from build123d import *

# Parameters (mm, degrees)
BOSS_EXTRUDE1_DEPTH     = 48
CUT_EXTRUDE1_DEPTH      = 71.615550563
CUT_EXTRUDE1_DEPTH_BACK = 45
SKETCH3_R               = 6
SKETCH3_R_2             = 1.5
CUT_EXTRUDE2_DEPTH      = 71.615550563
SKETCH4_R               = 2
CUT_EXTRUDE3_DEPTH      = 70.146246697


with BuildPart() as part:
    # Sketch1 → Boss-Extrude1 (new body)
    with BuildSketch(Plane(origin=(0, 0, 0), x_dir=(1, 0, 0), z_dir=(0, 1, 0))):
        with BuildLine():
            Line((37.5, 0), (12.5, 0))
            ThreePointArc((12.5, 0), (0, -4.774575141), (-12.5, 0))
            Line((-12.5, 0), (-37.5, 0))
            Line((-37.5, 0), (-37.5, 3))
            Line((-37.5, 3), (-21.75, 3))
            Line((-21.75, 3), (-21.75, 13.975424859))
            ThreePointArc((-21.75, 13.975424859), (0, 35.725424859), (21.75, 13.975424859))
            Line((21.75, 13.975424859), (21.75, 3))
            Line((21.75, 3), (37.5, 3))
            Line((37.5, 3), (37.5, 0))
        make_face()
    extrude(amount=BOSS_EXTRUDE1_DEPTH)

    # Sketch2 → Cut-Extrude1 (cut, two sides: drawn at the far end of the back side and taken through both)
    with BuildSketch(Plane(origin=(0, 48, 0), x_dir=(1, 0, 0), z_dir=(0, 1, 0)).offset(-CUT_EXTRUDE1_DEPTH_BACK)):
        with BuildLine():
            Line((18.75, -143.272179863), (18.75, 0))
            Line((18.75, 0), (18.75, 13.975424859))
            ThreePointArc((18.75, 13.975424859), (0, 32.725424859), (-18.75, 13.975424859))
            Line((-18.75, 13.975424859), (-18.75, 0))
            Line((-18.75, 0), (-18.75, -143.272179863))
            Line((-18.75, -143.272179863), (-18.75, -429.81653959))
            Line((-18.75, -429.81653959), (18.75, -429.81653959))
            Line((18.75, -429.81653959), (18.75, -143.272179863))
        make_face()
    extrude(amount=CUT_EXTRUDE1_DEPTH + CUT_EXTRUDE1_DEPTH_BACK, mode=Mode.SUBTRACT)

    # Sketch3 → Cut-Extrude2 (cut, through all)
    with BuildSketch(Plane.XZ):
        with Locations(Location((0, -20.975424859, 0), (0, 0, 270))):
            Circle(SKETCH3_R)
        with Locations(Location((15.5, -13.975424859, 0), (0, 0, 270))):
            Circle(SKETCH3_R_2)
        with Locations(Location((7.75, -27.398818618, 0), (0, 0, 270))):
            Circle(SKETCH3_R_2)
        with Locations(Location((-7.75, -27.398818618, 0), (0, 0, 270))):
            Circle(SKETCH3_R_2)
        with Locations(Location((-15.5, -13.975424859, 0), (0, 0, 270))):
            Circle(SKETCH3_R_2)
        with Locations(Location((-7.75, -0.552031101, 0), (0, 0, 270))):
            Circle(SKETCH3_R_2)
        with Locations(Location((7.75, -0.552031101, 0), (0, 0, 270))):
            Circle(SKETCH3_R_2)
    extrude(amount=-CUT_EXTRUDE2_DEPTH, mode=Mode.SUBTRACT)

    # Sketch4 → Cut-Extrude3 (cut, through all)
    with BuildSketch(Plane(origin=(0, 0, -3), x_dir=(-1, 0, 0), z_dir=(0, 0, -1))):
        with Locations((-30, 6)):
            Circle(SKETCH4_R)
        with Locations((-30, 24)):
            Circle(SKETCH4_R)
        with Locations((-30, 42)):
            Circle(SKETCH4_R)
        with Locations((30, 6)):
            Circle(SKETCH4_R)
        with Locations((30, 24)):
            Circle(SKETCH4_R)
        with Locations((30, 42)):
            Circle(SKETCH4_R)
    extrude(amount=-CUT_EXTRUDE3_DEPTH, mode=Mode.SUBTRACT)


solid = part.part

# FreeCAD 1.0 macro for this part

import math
import FreeCAD as App
import Part
import Sketcher
from FreeCAD import Vector

doc = App.newDocument("Part")
body = doc.addObject("PartDesign::Body", "Body")

# Sketch on XZ plane
sketch1 = body.newObject("Sketcher::SketchObject", "Sketch")
sketch1.AttachmentSupport = (doc.getObject("XZ_Plane"), [""])
sketch1.MapMode = "FlatFace"
sketch1.addGeometry([
    Part.LineSegment(Vector(12.5, 0, 0), Vector(37.5, 0, 0)),  # 0
    Part.LineSegment(Vector(37.5, 0, 0), Vector(37.5, -3, 0)),  # 1
    Part.LineSegment(Vector(37.5, -3, 0), Vector(21.75, -3, 0)),  # 2
    Part.LineSegment(Vector(21.75, -3, 0), Vector(21.75, -13.975425, 0)),  # 3
    Part.ArcOfCircle(Part.Circle(Vector(0, -13.975425, 0), Vector(0, 0, 1), 21.75), math.radians(180), math.radians(360)),  # 4
    Part.LineSegment(Vector(-21.75, -13.975425, 0), Vector(-21.75, -3, 0)),  # 5
    Part.LineSegment(Vector(-21.75, -3, 0), Vector(-37.5, -3, 0)),  # 6
    Part.LineSegment(Vector(-37.5, -3, 0), Vector(-37.5, 0, 0)),  # 7
    Part.LineSegment(Vector(-37.5, 0, 0), Vector(-12.5, 0, 0)),  # 8
    Part.ArcOfCircle(Part.Circle(Vector(0, -13.975425, 0), Vector(0, 0, 1), 18.75), math.radians(48.189685), math.radians(131.810315)),  # 9
], False)
sketch1.addConstraint([
    Sketcher.Constraint("Coincident", 0, 2, 1, 1),
    Sketcher.Constraint("Coincident", 1, 2, 2, 1),
    Sketcher.Constraint("Coincident", 2, 2, 3, 1),
    Sketcher.Constraint("Tangent", 3, 2, 4, 2),
    Sketcher.Constraint("Tangent", 4, 1, 5, 1),
    Sketcher.Constraint("Coincident", 5, 2, 6, 1),
    Sketcher.Constraint("Coincident", 6, 2, 7, 1),
    Sketcher.Constraint("Coincident", 7, 2, 8, 1),
    Sketcher.Constraint("Coincident", 8, 2, 9, 2),
    Sketcher.Constraint("Coincident", 9, 1, 0, 1),
    Sketcher.Constraint("Horizontal", 0),
    Sketcher.Constraint("Vertical", 1),
    Sketcher.Constraint("Horizontal", 2),
    Sketcher.Constraint("Vertical", 3),
    Sketcher.Constraint("Vertical", 5),
    Sketcher.Constraint("Horizontal", 6),
    Sketcher.Constraint("Vertical", 7),
    Sketcher.Constraint("Horizontal", 8),
    Sketcher.Constraint("Coincident", 9, 3, 4, 3),
    Sketcher.Constraint("Symmetric", 0, 2, 7, 2, -1, 1),
    Sketcher.Constraint("Symmetric", 2, 2, 5, 2, -2),
    Sketcher.Constraint("PointOnObject", 0, 2, -1),
    Sketcher.Constraint("DistanceX", 0, 1, 0, 2, 25.0),
    Sketcher.Constraint("DistanceY", 1, 2, 1, 1, 3.0),
    Sketcher.Constraint("Radius", 4, 21.75),
    Sketcher.Constraint("Radius", 9, 18.75),
    Sketcher.Constraint("DistanceX", 2, 2, 2, 1, 15.75),
])
pad1 = body.newObject("PartDesign::Pad", "Pad")
pad1.Profile = sketch1
pad1.Length = 48
pad1.Reversed = True

# Sketch on XZ plane
sketch2 = body.newObject("Sketcher::SketchObject", "Sketch001")
sketch2.AttachmentSupport = (doc.getObject("XZ_Plane"), [""])
sketch2.MapMode = "FlatFace"
sketch2.AttachmentOffset = App.Placement(Vector(0, 0, -48), App.Rotation())
sketch2.addGeometry([
    Part.ArcOfCircle(Part.Circle(Vector(0, -13.975425, 0), Vector(0, 0, 1), 18.75), math.radians(180), math.radians(360)),
    Part.LineSegment(Vector(-18.75, -13.975425, 0), Vector(-18.75, 429.81654, 0)),
    Part.LineSegment(Vector(-18.75, 429.81654, 0), Vector(18.75, 429.81654, 0)),
    Part.LineSegment(Vector(18.75, 429.81654, 0), Vector(18.75, -13.975425, 0)),
], False)
sketch2.addConstraint([
    Sketcher.Constraint("Tangent", 0, 1, 1, 1),
    Sketcher.Constraint("Coincident", 1, 2, 2, 1),
    Sketcher.Constraint("Coincident", 2, 2, 3, 1),
    Sketcher.Constraint("Tangent", 3, 2, 0, 2),
    Sketcher.Constraint("Vertical", 1),
    Sketcher.Constraint("Horizontal", 2),
    Sketcher.Constraint("Vertical", 3),
    Sketcher.Constraint("PointOnObject", 0, 3, -2),
    Sketcher.Constraint("Radius", 0, 18.75),
    Sketcher.Constraint("DistanceY", 1, 1, 1, 2, 443.791964),
    Sketcher.Constraint("DistanceY", -1, 1, 1, 2, 429.81654),
])
pocket1 = body.newObject("PartDesign::Pocket", "Pocket")
pocket1.Profile = sketch2
pocket1.Type = "TwoLengths"
pocket1.Length = 71.615551
pocket1.Length2 = 45

# Sketch on XZ plane
sketch3 = body.newObject("Sketcher::SketchObject", "Sketch002")
sketch3.AttachmentSupport = (doc.getObject("XZ_Plane"), [""])
sketch3.MapMode = "FlatFace"
sketch3.addGeometry([
    Part.Circle(Vector(0, -20.975425, 0), Vector(0, 0, 1), 6),  # 0
    Part.Circle(Vector(15.5, -13.975425, 0), Vector(0, 0, 1), 1.5),  # 1
    Part.Circle(Vector(7.75, -27.398819, 0), Vector(0, 0, 1), 1.5),  # 2
    Part.Circle(Vector(-7.75, -27.398819, 0), Vector(0, 0, 1), 1.5),  # 3
    Part.Circle(Vector(-15.5, -13.975425, 0), Vector(0, 0, 1), 1.5),  # 4
    Part.Circle(Vector(-7.75, -0.552031, 0), Vector(0, 0, 1), 1.5),  # 5
    Part.Circle(Vector(7.75, -0.552031, 0), Vector(0, 0, 1), 1.5),  # 6
], False)
sketch3.addConstraint([
    Sketcher.Constraint("Equal", 1, 2),
    Sketcher.Constraint("Equal", 2, 3),
    Sketcher.Constraint("Equal", 3, 4),
    Sketcher.Constraint("Equal", 4, 5),
    Sketcher.Constraint("Equal", 5, 6),
    Sketcher.Constraint("Symmetric", 2, 3, 3, 3, -2),
    Sketcher.Constraint("Symmetric", 1, 3, 4, 3, -2),
    Sketcher.Constraint("Symmetric", 5, 3, 6, 3, -2),
    Sketcher.Constraint("PointOnObject", 0, 3, -2),
    Sketcher.Constraint("Vertical", 3, 3, 5, 3),
    Sketcher.Constraint("Diameter", 0, 12.0),
    Sketcher.Constraint("Diameter", 1, 3.0),
    Sketcher.Constraint("DistanceY", 0, 3, 1, 3, 7.0),
    Sketcher.Constraint("DistanceX", 4, 3, 1, 3, 31.0),
    Sketcher.Constraint("DistanceX", 3, 3, 2, 3, 15.5),
    Sketcher.Constraint("DistanceY", 2, 3, -1, 1, 27.398819),
    Sketcher.Constraint("DistanceY", 5, 3, -1, 1, 0.552031),
    Sketcher.Constraint("DistanceY", 0, 3, -1, 1, 20.975425),
])
pocket2 = body.newObject("PartDesign::Pocket", "Pocket001")
pocket2.Profile = sketch3
pocket2.Type = "ThroughAll"

# Sketch on XY plane
sketch4 = body.newObject("Sketcher::SketchObject", "Sketch003")
sketch4.AttachmentSupport = (doc.getObject("XY_Plane"), [""])
sketch4.MapMode = "FlatFace"
sketch4.AttachmentOffset = App.Placement(Vector(0, 0, -3), App.Rotation())
sketch4.addGeometry([
    Part.Circle(Vector(30, 6, 0), Vector(0, 0, 1), 2),  # 0
    Part.Circle(Vector(30, 24, 0), Vector(0, 0, 1), 2),  # 1
    Part.Circle(Vector(30, 42, 0), Vector(0, 0, 1), 2),  # 2
    Part.Circle(Vector(-30, 6, 0), Vector(0, 0, 1), 2),  # 3
    Part.Circle(Vector(-30, 24, 0), Vector(0, 0, 1), 2),  # 4
    Part.Circle(Vector(-30, 42, 0), Vector(0, 0, 1), 2),  # 5
], False)
sketch4.addConstraint([
    Sketcher.Constraint("Equal", 0, 1),
    Sketcher.Constraint("Equal", 1, 2),
    Sketcher.Constraint("Equal", 2, 3),
    Sketcher.Constraint("Equal", 3, 4),
    Sketcher.Constraint("Equal", 4, 5),
    Sketcher.Constraint("Symmetric", 0, 3, 3, 3, -2),
    Sketcher.Constraint("Symmetric", 1, 3, 4, 3, -2),
    Sketcher.Constraint("Symmetric", 2, 3, 5, 3, -2),
    Sketcher.Constraint("Vertical", 0, 3, 1, 3),
    Sketcher.Constraint("Vertical", 1, 3, 2, 3),
    Sketcher.Constraint("Diameter", 0, 4.0),
    Sketcher.Constraint("DistanceX", -1, 1, 0, 3, 30.0),
    Sketcher.Constraint("DistanceY", -1, 1, 0, 3, 6.0),
    Sketcher.Constraint("DistanceY", -1, 1, 1, 3, 24.0),
    Sketcher.Constraint("DistanceY", -1, 1, 2, 3, 42.0),
])
pocket3 = body.newObject("PartDesign::Pocket", "Pocket002")
pocket3.Profile = sketch4
pocket3.Type = "ThroughAll"
pocket3.Reversed = True

doc.recompute()
